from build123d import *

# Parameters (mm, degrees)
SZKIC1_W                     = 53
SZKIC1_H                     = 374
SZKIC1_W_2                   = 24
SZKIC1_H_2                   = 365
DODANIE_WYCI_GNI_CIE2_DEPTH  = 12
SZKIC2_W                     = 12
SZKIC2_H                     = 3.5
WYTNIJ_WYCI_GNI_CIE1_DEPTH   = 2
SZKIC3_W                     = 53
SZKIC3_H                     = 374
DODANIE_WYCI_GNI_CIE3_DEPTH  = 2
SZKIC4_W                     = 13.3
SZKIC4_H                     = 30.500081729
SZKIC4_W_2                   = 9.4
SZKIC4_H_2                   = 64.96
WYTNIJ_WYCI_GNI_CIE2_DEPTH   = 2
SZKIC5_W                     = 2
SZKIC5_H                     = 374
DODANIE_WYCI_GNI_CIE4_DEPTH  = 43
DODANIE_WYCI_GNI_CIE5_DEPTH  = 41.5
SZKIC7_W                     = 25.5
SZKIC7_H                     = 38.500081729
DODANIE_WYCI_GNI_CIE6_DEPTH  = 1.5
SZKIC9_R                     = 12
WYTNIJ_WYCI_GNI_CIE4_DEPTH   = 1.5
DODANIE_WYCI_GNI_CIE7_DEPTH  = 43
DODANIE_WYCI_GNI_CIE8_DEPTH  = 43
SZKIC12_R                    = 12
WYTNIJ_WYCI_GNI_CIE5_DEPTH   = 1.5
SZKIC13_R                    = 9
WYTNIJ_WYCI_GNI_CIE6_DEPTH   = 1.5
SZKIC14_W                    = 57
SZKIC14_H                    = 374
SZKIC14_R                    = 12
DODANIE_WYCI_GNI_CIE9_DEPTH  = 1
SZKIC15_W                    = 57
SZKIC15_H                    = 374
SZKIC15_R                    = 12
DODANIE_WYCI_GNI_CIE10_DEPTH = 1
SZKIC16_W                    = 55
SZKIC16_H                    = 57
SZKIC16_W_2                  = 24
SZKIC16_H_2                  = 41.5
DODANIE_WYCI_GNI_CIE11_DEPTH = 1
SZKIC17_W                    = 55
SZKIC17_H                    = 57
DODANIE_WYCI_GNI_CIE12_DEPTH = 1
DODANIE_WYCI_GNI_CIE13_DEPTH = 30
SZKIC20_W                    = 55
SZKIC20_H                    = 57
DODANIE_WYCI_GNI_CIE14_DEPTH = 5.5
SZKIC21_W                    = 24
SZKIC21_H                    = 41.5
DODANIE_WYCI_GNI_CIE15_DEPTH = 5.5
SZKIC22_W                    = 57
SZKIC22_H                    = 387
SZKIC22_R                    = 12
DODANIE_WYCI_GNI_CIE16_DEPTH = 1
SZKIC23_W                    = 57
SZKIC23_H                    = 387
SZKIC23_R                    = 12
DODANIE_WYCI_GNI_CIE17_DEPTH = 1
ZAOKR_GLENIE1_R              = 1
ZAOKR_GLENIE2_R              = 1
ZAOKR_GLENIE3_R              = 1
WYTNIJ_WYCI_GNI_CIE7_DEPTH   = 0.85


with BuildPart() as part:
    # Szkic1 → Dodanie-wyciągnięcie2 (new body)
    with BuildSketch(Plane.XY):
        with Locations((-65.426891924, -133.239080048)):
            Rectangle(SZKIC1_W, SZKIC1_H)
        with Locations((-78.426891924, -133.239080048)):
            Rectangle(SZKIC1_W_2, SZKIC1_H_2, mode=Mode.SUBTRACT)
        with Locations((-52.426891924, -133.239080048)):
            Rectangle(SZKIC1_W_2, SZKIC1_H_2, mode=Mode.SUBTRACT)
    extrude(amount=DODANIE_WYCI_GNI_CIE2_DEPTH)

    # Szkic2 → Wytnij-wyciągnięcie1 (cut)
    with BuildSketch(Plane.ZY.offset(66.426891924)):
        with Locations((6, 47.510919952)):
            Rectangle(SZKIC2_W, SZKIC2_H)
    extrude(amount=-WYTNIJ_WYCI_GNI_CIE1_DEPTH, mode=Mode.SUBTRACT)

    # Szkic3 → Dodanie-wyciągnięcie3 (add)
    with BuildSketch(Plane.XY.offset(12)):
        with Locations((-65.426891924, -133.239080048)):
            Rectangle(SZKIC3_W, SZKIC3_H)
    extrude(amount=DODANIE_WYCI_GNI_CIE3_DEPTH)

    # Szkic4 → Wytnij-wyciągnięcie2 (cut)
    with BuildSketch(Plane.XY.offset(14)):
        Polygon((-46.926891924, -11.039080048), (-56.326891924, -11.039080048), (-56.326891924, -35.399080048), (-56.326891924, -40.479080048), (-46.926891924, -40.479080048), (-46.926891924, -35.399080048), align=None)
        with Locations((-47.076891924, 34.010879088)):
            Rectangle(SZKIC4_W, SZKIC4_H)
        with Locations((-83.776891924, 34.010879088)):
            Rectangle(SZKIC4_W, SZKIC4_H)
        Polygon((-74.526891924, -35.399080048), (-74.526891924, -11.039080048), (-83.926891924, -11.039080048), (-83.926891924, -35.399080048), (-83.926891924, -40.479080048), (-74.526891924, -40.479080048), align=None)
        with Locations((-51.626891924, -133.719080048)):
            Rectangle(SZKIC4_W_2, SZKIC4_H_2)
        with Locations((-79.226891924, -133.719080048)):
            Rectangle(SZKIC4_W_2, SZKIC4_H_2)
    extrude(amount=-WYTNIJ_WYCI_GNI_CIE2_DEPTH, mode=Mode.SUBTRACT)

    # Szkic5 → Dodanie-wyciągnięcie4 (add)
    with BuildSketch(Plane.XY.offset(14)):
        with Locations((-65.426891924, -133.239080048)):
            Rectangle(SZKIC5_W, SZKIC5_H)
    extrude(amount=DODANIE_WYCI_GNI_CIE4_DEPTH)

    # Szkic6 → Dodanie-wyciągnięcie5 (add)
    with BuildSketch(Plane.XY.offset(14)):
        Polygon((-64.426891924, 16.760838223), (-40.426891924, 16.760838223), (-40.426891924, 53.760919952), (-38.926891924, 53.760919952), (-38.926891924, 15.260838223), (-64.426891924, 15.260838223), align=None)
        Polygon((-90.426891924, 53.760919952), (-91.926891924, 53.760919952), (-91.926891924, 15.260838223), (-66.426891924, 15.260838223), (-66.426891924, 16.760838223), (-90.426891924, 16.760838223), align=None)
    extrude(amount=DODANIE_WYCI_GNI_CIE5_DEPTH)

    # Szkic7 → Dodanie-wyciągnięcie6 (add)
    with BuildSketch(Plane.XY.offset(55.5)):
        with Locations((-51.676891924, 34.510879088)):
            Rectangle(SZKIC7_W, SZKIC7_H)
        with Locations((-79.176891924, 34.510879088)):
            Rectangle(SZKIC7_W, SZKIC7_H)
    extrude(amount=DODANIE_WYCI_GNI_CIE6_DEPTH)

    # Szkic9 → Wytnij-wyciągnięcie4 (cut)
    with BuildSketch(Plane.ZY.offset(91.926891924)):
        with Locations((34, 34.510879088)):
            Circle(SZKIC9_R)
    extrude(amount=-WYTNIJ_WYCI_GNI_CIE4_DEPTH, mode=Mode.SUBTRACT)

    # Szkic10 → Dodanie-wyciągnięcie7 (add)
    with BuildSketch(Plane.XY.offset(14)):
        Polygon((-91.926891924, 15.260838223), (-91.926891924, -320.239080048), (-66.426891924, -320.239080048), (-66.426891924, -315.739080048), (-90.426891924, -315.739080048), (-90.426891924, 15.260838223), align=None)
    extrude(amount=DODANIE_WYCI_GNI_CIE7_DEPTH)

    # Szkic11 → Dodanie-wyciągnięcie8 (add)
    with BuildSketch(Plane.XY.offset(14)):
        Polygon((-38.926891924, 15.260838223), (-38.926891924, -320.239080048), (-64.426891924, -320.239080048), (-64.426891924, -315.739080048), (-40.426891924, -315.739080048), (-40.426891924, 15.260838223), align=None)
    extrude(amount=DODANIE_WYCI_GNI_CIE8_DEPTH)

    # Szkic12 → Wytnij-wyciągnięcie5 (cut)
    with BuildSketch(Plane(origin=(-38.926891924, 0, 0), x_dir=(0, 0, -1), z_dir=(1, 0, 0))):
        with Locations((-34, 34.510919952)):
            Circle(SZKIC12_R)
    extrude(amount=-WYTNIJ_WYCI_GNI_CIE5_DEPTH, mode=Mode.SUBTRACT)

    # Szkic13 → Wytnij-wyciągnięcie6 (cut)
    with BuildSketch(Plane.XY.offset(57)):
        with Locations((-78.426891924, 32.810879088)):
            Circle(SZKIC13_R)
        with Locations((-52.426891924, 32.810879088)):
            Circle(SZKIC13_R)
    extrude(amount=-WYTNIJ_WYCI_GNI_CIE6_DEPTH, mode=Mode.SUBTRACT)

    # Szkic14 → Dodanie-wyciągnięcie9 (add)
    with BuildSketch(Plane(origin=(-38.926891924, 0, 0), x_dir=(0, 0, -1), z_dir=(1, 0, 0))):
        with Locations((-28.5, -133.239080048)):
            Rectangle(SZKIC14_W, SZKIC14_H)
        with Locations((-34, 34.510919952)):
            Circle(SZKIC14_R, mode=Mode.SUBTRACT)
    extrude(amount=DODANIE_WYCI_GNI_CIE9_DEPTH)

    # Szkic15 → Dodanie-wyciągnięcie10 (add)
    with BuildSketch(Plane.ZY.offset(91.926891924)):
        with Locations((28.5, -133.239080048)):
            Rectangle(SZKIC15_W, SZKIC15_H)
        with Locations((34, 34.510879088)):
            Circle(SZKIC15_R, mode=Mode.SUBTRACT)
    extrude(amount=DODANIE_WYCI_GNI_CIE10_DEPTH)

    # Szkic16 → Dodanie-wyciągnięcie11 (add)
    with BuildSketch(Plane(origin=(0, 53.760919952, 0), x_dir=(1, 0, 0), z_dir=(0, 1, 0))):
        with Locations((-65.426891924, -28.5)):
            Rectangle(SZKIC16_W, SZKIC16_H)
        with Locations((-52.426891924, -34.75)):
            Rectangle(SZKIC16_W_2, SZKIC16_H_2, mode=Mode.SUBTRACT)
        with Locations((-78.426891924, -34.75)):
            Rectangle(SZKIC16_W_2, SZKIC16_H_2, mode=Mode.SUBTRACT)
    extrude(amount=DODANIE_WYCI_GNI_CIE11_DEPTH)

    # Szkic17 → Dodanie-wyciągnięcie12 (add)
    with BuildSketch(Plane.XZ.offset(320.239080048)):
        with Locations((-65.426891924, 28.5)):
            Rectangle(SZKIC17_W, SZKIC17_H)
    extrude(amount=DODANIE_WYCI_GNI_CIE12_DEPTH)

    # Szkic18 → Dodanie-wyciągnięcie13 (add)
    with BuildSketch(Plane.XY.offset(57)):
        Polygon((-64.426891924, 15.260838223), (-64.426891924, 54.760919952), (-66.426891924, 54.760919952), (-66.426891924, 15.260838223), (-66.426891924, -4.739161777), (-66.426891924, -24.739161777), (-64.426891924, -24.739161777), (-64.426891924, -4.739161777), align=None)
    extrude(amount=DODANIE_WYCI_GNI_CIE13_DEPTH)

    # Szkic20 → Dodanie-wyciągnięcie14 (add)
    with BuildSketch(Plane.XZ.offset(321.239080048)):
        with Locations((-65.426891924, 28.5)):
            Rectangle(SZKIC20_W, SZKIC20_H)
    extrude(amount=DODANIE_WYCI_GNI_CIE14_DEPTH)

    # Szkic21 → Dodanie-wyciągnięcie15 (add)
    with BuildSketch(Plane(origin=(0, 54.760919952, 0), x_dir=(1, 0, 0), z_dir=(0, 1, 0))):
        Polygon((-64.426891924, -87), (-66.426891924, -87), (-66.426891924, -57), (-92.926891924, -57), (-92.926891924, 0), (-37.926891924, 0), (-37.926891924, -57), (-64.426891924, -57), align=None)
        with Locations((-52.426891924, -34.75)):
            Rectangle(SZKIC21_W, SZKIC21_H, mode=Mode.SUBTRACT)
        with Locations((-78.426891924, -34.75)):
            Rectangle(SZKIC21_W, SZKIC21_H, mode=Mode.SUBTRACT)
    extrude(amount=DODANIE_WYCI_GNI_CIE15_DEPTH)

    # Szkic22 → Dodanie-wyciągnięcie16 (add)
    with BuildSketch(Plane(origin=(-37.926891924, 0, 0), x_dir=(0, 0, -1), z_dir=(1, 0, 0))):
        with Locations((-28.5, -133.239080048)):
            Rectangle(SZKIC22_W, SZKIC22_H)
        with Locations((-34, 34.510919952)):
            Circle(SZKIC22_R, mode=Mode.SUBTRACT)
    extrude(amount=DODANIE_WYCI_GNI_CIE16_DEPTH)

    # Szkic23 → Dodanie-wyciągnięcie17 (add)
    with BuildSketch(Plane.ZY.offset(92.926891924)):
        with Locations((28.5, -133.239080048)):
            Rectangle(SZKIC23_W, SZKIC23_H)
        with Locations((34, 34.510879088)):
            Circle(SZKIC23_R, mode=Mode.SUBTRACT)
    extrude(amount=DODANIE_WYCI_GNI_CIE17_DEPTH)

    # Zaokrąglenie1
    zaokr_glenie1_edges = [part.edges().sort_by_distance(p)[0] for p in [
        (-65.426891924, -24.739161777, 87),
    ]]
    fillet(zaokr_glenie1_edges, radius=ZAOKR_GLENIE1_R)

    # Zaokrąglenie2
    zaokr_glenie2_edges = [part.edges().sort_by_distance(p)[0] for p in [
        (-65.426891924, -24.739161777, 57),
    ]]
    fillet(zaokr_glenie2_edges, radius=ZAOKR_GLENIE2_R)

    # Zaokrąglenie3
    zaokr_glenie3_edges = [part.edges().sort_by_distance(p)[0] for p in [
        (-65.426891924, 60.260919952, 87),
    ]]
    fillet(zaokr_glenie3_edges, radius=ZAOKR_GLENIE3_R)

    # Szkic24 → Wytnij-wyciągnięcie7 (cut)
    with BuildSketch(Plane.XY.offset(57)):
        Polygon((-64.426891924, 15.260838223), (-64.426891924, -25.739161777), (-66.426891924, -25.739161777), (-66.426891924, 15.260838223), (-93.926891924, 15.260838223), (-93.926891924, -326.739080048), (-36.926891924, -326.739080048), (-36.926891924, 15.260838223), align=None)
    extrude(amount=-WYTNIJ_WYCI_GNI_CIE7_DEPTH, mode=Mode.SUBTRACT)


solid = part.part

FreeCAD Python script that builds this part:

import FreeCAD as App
import Part
import Sketcher

V = App.Vector
Q = App.Units.Quantity


def edges_at(feature, points):
    """Names of the edges that pass closest to the given points."""
    edges = feature.Shape.Edges
    near = lambda p: min(range(len(edges)), key=lambda i: edges[i].distToShape(Part.Vertex(*p))[0])
    return sorted({f"Edge{near(p) + 1}" for p in points})


def add_polygon(sketch, points):
    """Adds a closed chain of lines whose ends are joined by coincident constraints."""
    first, n = sketch.GeometryCount, len(points)
    for a, b in zip(points, points[1:] + points[:1]):
        sketch.addGeometry(Part.LineSegment(App.Vector(*a, 0), App.Vector(*b, 0)), False)
    for i in range(n):
        sketch.addConstraint(Sketcher.Constraint("Coincident", first + i, 2, first + (i + 1) % n, 1))

doc = App.newDocument("Part")
body = doc.addObject("PartDesign::Body", "Body")

# Sketch on XY plane
sketch1 = body.newObject("Sketcher::SketchObject", "Sketch")
sketch1.AttachmentSupport = (doc.getObject("XY_Plane"), [""])
sketch1.MapMode = "FlatFace"
add_polygon(sketch1, [(-92, 54), (-92, -320), (-39, -320), (-39, 54)])  # lines 0-3
add_polygon(sketch1, [(-66, -316), (-90, -316), (-90, 49), (-66, 49)])  # lines 4-7
add_polygon(sketch1, [(-40, -316), (-64, -316), (-64, 49), (-40, 49)])  # lines 8-11
sketch1.addConstraint(Sketcher.Constraint("Vertical", 0))
sketch1.addConstraint(Sketcher.Constraint("Horizontal", 1))
sketch1.addConstraint(Sketcher.Constraint("Vertical", 2))
sketch1.addConstraint(Sketcher.Constraint("Horizontal", 3))
sketch1.addConstraint(Sketcher.Constraint("Horizontal", 4))
sketch1.addConstraint(Sketcher.Constraint("Vertical", 5))
sketch1.addConstraint(Sketcher.Constraint("Horizontal", 6))
sketch1.addConstraint(Sketcher.Constraint("Vertical", 7))
sketch1.addConstraint(Sketcher.Constraint("Horizontal", 8))
sketch1.addConstraint(Sketcher.Constraint("Vertical", 9))
sketch1.addConstraint(Sketcher.Constraint("Horizontal", 10))
sketch1.addConstraint(Sketcher.Constraint("Vertical", 11))
sketch1.addConstraint(Sketcher.Constraint("Horizontal", 7, 2, 8, 2))
sketch1.addConstraint(Sketcher.Constraint("Horizontal", 6, 2, 9, 2))
sketch1.addConstraint(Sketcher.Constraint("Equal", 6, 8))
sketch1.addConstraint(Sketcher.Constraint("DistanceX", 1, 1, 1, 2, Q("53 mm")))
sketch1.addConstraint(Sketcher.Constraint("DistanceX", 4, 2, 4, 1, Q("24 mm")))
sketch1.addConstraint(Sketcher.Constraint("DistanceY", 0, 2, 0, 1, Q("374 mm")))
sketch1.addConstraint(Sketcher.Constraint("DistanceY", 5, 1, 5, 2, Q("365 mm")))
sketch1.addConstraint(Sketcher.Constraint("DistanceX", 7, 2, 8, 2, Q("2 mm")))
sketch1.addConstraint(Sketcher.Constraint("DistanceX", 0, 2, 4, 2, Q("1.5 mm")))
sketch1.addConstraint(Sketcher.Constraint("DistanceY", 0, 2, 4, 2, Q("4.5 mm")))
sketch1.addConstraint(Sketcher.Constraint("DistanceX", 0, 2, -1, 1, Q("91.926892 mm")))
sketch1.addConstraint(Sketcher.Constraint("DistanceY", 0, 2, -1, 1, Q("320.23908 mm")))
pad1 = body.newObject("PartDesign::Pad", "Pad")
pad1.Profile = sketch1
pad1.Length = 12

# Sketch on YZ plane
sketch2 = body.newObject("Sketcher::SketchObject", "Sketch001")
sketch2.AttachmentSupport = (doc.getObject("YZ_Plane"), [""])
sketch2.MapMode = "FlatFace"
sketch2.AttachmentOffset = App.Placement(V(0, 0, -66.426892), App.Rotation())
add_polygon(sketch2, [(49.3, 0), (45.8, 0), (45.8, 12), (49.3, 12)])  # lines 0-3
sketch2.addConstraint(Sketcher.Constraint("Horizontal", 0))
sketch2.addConstraint(Sketcher.Constraint("Vertical", 1))
sketch2.addConstraint(Sketcher.Constraint("Horizontal", 2))
sketch2.addConstraint(Sketcher.Constraint("Vertical", 3))
sketch2.addConstraint(Sketcher.Constraint("PointOnObject", 0, 2, -1))
sketch2.addConstraint(Sketcher.Constraint("DistanceY", 1, 1, 1, 2, Q("12 mm")))
sketch2.addConstraint(Sketcher.Constraint("DistanceX", 0, 2, 0, 1, Q("3.5 mm")))
sketch2.addConstraint(Sketcher.Constraint("DistanceX", -1, 1, 0, 2, Q("45.76092 mm")))
pocket1 = body.newObject("PartDesign::Pocket", "Pocket")
pocket1.Profile = sketch2
pocket1.Length = 2
pocket1.Reversed = True

# Sketch on XY plane
sketch3 = body.newObject("Sketcher::SketchObject", "Sketch002")
sketch3.AttachmentSupport = (doc.getObject("XY_Plane"), [""])
sketch3.MapMode = "FlatFace"
sketch3.AttachmentOffset = App.Placement(V(0, 0, 12), App.Rotation())
add_polygon(sketch3, [(-92, 54), (-92, -320), (-39, -320), (-39, 54)])  # lines 0-3
sketch3.addConstraint(Sketcher.Constraint("Vertical", 0))
sketch3.addConstraint(Sketcher.Constraint("Horizontal", 1))
sketch3.addConstraint(Sketcher.Constraint("Vertical", 2))
sketch3.addConstraint(Sketcher.Constraint("Horizontal", 3))
sketch3.addConstraint(Sketcher.Constraint("DistanceX", 1, 1, 1, 2, Q("53 mm")))
sketch3.addConstraint(Sketcher.Constraint("DistanceY", 0, 2, 0, 1, Q("374 mm")))
sketch3.addConstraint(Sketcher.Constraint("DistanceX", 0, 2, -1, 1, Q("91.926892 mm")))
sketch3.addConstraint(Sketcher.Constraint("DistanceY", 0, 2, -1, 1, Q("320.23908 mm")))
pad2 = body.newObject("PartDesign::Pad", "Pad001")
pad2.Profile = sketch3
pad2.Length = 2

# Sketch on XY plane
sketch4 = body.newObject("Sketcher::SketchObject", "Sketch003")
sketch4.AttachmentSupport = (doc.getObject("XY_Plane"), [""])
sketch4.MapMode = "FlatFace"
sketch4.AttachmentOffset = App.Placement(V(0, 0, 14), App.Rotation())
add_polygon(sketch4, [(-47, -11), (-56, -11), (-56, -40), (-47, -40)])  # lines 0-3
add_polygon(sketch4, [(-54, 49), (-54, 19), (-40, 19), (-40, 49)])  # lines 4-7
add_polygon(sketch4, [(-90, 49), (-90, 19), (-77, 19), (-77, 49)])  # lines 8-11
add_polygon(sketch4, [(-75, -11), (-84, -11), (-84, -40), (-75, -40)])  # lines 12-15
add_polygon(sketch4, [(-56, -101), (-56, -166), (-47, -166), (-47, -101)])  # lines 16-19
add_polygon(sketch4, [(-84, -101), (-84, -166), (-75, -166), (-75, -101)])  # lines 20-23
sketch4.addConstraint(Sketcher.Constraint("Horizontal", 0))
sketch4.addConstraint(Sketcher.Constraint("Vertical", 1))
sketch4.addConstraint(Sketcher.Constraint("Horizontal", 2))
sketch4.addConstraint(Sketcher.Constraint("Vertical", 3))
sketch4.addConstraint(Sketcher.Constraint("Vertical", 4))
sketch4.addConstraint(Sketcher.Constraint("Horizontal", 5))
sketch4.addConstraint(Sketcher.Constraint("Vertical", 6))
sketch4.addConstraint(Sketcher.Constraint("Horizontal", 7))
sketch4.addConstraint(Sketcher.Constraint("Vertical", 8))
sketch4.addConstraint(Sketcher.Constraint("Horizontal", 9))
sketch4.addConstraint(Sketcher.Constraint("Vertical", 10))
sketch4.addConstraint(Sketcher.Constraint("Horizontal", 11))
sketch4.addConstraint(Sketcher.Constraint("Horizontal", 12))
sketch4.addConstraint(Sketcher.Constraint("Vertical", 13))
sketch4.addConstraint(Sketcher.Constraint("Horizontal", 14))
sketch4.addConstraint(Sketcher.Constraint("Vertical", 15))
sketch4.addConstraint(Sketcher.Constraint("Vertical", 16))
sketch4.addConstraint(Sketcher.Constraint("Horizontal", 17))
sketch4.addConstraint(Sketcher.Constraint("Vertical", 18))
sketch4.addConstraint(Sketcher.Constraint("Horizontal", 19))
sketch4.addConstraint(Sketcher.Constraint("Vertical", 20))
sketch4.addConstraint(Sketcher.Constraint("Horizontal", 21))
sketch4.addConstraint(Sketcher.Constraint("Vertical", 22))
sketch4.addConstraint(Sketcher.Constraint("Horizontal", 23))
sketch4.addConstraint(Sketcher.Constraint("Horizontal", 5, 2, 8, 2))
sketch4.addConstraint(Sketcher.Constraint("Horizontal", 7, 2, 10, 2))
sketch4.addConstraint(Sketcher.Constraint("Horizontal", 3, 2, 12, 2))
sketch4.addConstraint(Sketcher.Constraint("Horizontal", 2, 2, 13, 2))
sketch4.addConstraint(Sketcher.Constraint("Horizontal", 17, 2, 20, 2))
sketch4.addConstraint(Sketcher.Constraint("Horizontal", 19, 2, 22, 2))
sketch4.addConstraint(Sketcher.Constraint("Vertical", 1, 2, 16, 2))
sketch4.addConstraint(Sketcher.Constraint("Vertical", 3, 2, 17, 2))
sketch4.addConstraint(Sketcher.Constraint("Vertical", 13, 2, 20, 2))
sketch4.addConstraint(Sketcher.Constraint("Vertical", 15, 2, 21, 2))
sketch4.addConstraint(Sketcher.Constraint("Equal", 7, 9))
sketch4.addConstraint(Sketcher.Constraint("Equal", 2, 12))
sketch4.addConstraint(Sketcher.Constraint("DistanceX", 0, 2, 0, 1, Q("9.4 mm")))
sketch4.addConstraint(Sketcher.Constraint("DistanceX", 5, 1, 5, 2, Q("13.3 mm")))
sketch4.addConstraint(Sketcher.Constraint("DistanceX", 8, 2, 5, 2, Q("50 mm")))
sketch4.addConstraint(Sketcher.Constraint("DistanceX", 12, 2, 3, 2, Q("37 mm")))
sketch4.addConstraint(Sketcher.Constraint("DistanceY", 1, 2, 1, 1, Q("29.44 mm")))
sketch4.addConstraint(Sketcher.Constraint("DistanceY", 16, 2, 16, 1, Q("64.96 mm")))
sketch4.addConstraint(Sketcher.Constraint("DistanceX", 0, 2, 4, 2, Q("2.6 mm")))
sketch4.addConstraint(Sketcher.Constraint("DistanceY", 3, 2, 6, 2, Q("60.3 mm")))
sketch4.addConstraint(Sketcher.Constraint("DistanceY", 16, 2, 1, 2, Q("125.72 mm")))
sketch4.addConstraint(Sketcher.Constraint("DistanceY", 4, 2, 4, 1, Q("30.500082 mm")))
sketch4.addConstraint(Sketcher.Constraint("DistanceX", 0, 2, -1, 1, Q("56.326892 mm")))
sketch4.addConstraint(Sketcher.Constraint("DistanceY", 0, 2, -1, 1, Q("11.03908 mm")))
pocket2 = body.newObject("PartDesign::Pocket", "Pocket001")
pocket2.Profile = sketch4
pocket2.Length = 2

# Sketch on XY plane
sketch5 = body.newObject("Sketcher::SketchObject", "Sketch004")
sketch5.AttachmentSupport = (doc.getObject("XY_Plane"), [""])
sketch5.MapMode = "FlatFace"
sketch5.AttachmentOffset = App.Placement(V(0, 0, 14), App.Rotation())
add_polygon(sketch5, [(-66.4, 53.8), (-66.4, -320.2), (-64.4, -320.2), (-64.4, 53.8)])  # lines 0-3
sketch5.addConstraint(Sketcher.Constraint("Vertical", 0))
sketch5.addConstraint(Sketcher.Constraint("Horizontal", 1))
sketch5.addConstraint(Sketcher.Constraint("Vertical", 2))
sketch5.addConstraint(Sketcher.Constraint("Horizontal", 3))
sketch5.addConstraint(Sketcher.Constraint("DistanceX", 1, 1, 1, 2, Q("2 mm")))
sketch5.addConstraint(Sketcher.Constraint("DistanceY", 0, 2, 0, 1, Q("374 mm")))
sketch5.addConstraint(Sketcher.Constraint("DistanceX", 0, 2, -1, 1, Q("66.426892 mm")))
sketch5.addConstraint(Sketcher.Constraint("DistanceY", 0, 2, -1, 1, Q("320.23908 mm")))
pad3 = body.newObject("PartDesign::Pad", "Pad002")
pad3.Profile = sketch5
pad3.Length = 43

# Sketch on XY plane
sketch6 = body.newObject("Sketcher::SketchObject", "Sketch005")
sketch6.AttachmentSupport = (doc.getObject("XY_Plane"), [""])
sketch6.MapMode = "FlatFace"
sketch6.AttachmentOffset = App.Placement(V(0, 0, 14), App.Rotation())
add_polygon(sketch6, [(-40.4, 16.8), (-64.4, 16.8), (-64.4, 15.3), (-38.9, 15.3), (-38.9, 53.8), (-40.4, 53.8)])  # lines 0-5
add_polygon(sketch6, [(-90.4, 53.8), (-91.9, 53.8), (-91.9, 15.3), (-66.4, 15.3), (-66.4, 16.8), (-90.4, 16.8)])  # lines 6-11
sketch6.addConstraint(Sketcher.Constraint("Horizontal", 0))
sketch6.addConstraint(Sketcher.Constraint("Vertical", 1))
sketch6.addConstraint(Sketcher.Constraint("Horizontal", 2))
sketch6.addConstraint(Sketcher.Constraint("Vertical", 3))
sketch6.addConstraint(Sketcher.Constraint("Horizontal", 4))
sketch6.addConstraint(Sketcher.Constraint("Vertical", 5))
sketch6.addConstraint(Sketcher.Constraint("Horizontal", 6))
sketch6.addConstraint(Sketcher.Constraint("Vertical", 7))
sketch6.addConstraint(Sketcher.Constraint("Horizontal", 8))
sketch6.addConstraint(Sketcher.Constraint("Vertical", 9))
sketch6.addConstraint(Sketcher.Constraint("Horizontal", 10))
sketch6.addConstraint(Sketcher.Constraint("Vertical", 11))
sketch6.addConstraint(Sketcher.Constraint("Horizontal", 4, 2, 6, 2))
sketch6.addConstraint(Sketcher.Constraint("Horizontal", 2, 2, 7, 2))
sketch6.addConstraint(Sketcher.Constraint("Horizontal", 5, 2, 9, 2))
sketch6.addConstraint(Sketcher.Constraint("Equal", 4, 6))
sketch6.addConstraint(Sketcher.Constraint("Equal", 2, 8))
sketch6.addConstraint(Sketcher.Constraint("Equal", 6, 1))
sketch6.addConstraint(Sketcher.Constraint("DistanceX", 0, 2, 0, 1, Q("24 mm")))
sketch6.addConstraint(Sketcher.Constraint("DistanceX", 2, 1, 2, 2, Q("25.5 mm")))
sketch6.addConstraint(Sketcher.Constraint("DistanceX", 6, 2, 3, 2, Q("53 mm")))
sketch6.addConstraint(Sketcher.Constraint("DistanceY", 3, 1, 3, 2, Q("38.500082 mm")))
sketch6.addConstraint(Sketcher.Constraint("DistanceX", 0, 2, -1, 1, Q("64.426892 mm")))
sketch6.addConstraint(Sketcher.Constraint("DistanceY", -1, 1, 0, 2, Q("16.760838 mm")))
pad4 = body.newObject("PartDesign::Pad", "Pad003")
pad4.Profile = sketch6
pad4.Length = 41.5

# Sketch on XY plane
sketch7 = body.newObject("Sketcher::SketchObject", "Sketch006")
sketch7.AttachmentSupport = (doc.getObject("XY_Plane"), [""])
sketch7.MapMode = "FlatFace"
sketch7.AttachmentOffset = App.Placement(V(0, 0, 55.5), App.Rotation())
add_polygon(sketch7, [(-64, 54), (-64, 15), (-39, 15), (-39, 54)])  # lines 0-3
add_polygon(sketch7, [(-92, 54), (-92, 15), (-66, 15), (-66, 54)])  # lines 4-7
sketch7.addConstraint(Sketcher.Constraint("Vertical", 0))
sketch7.addConstraint(Sketcher.Constraint("Horizontal", 1))
sketch7.addConstraint(Sketcher.Constraint("Vertical", 2))
sketch7.addConstraint(Sketcher.Constraint("Horizontal", 3))
sketch7.addConstraint(Sketcher.Constraint("Vertical", 4))
sketch7.addConstraint(Sketcher.Constraint("Horizontal", 5))
sketch7.addConstraint(Sketcher.Constraint("Vertical", 6))
sketch7.addConstraint(Sketcher.Constraint("Horizontal", 7))
sketch7.addConstraint(Sketcher.Constraint("Horizontal", 1, 2, 4, 2))
sketch7.addConstraint(Sketcher.Constraint("Horizontal", 3, 2, 6, 2))
sketch7.addConstraint(Sketcher.Constraint("Equal", 3, 5))
sketch7.addConstraint(Sketcher.Constraint("DistanceX", 1, 1, 1, 2, Q("25.5 mm")))
sketch7.addConstraint(Sketcher.Constraint("DistanceX", 4, 2, 1, 2, Q("53 mm")))
sketch7.addConstraint(Sketcher.Constraint("DistanceY", 0, 2, 0, 1, Q("38.500082 mm")))
sketch7.addConstraint(Sketcher.Constraint("DistanceX", 0, 2, -1, 1, Q("64.426892 mm")))
sketch7.addConstraint(Sketcher.Constraint("DistanceY", -1, 1, 0, 2, Q("15.260838 mm")))
pad5 = body.newObject("PartDesign::Pad", "Pad004")
pad5.Profile = sketch7
pad5.Length = 1.5

# Sketch on YZ plane
sketch8 = body.newObject("Sketcher::SketchObject", "Sketch007")
sketch8.AttachmentSupport = (doc.getObject("YZ_Plane"), [""])
sketch8.MapMode = "FlatFace"
sketch8.AttachmentOffset = App.Placement(V(0, 0, -91.926892), App.Rotation())
sketch8.addGeometry(Part.Circle(V(35, 34, 0), V(0, 0, 1), 12), False)
sketch8.addConstraint(Sketcher.Constraint("Diameter", 0, Q("24 mm")))
sketch8.addConstraint(Sketcher.Constraint("DistanceY", -1, 1, 0, 3, Q("34 mm")))
sketch8.addConstraint(Sketcher.Constraint("DistanceX", -1, 1, 0, 3, Q("34.510879 mm")))
pocket3 = body.newObject("PartDesign::Pocket", "Pocket002")
pocket3.Profile = sketch8
pocket3.Length = 1.5
pocket3.Reversed = True

# Sketch on XY plane
sketch9 = body.newObject("Sketcher::SketchObject", "Sketch008")
sketch9.AttachmentSupport = (doc.getObject("XY_Plane"), [""])
sketch9.MapMode = "FlatFace"
sketch9.AttachmentOffset = App.Placement(V(0, 0, 14), App.Rotation())
add_polygon(sketch9, [(-91.9, 15.3), (-91.9, -320.2), (-66.4, -320.2), (-66.4, -315.7), (-90.4, -315.7), (-90.4, 15.3)])  # lines 0-5
sketch9.addConstraint(Sketcher.Constraint("Vertical", 0))
sketch9.addConstraint(Sketcher.Constraint("Horizontal", 1))
sketch9.addConstraint(Sketcher.Constraint("Vertical", 2))
sketch9.addConstraint(Sketcher.Constraint("Horizontal", 3))
sketch9.addConstraint(Sketcher.Constraint("Vertical", 4))
sketch9.addConstraint(Sketcher.Constraint("Horizontal", 5))
sketch9.addConstraint(Sketcher.Constraint("DistanceX", 3, 2, 3, 1, Q("24 mm")))
sketch9.addConstraint(Sketcher.Constraint("DistanceX", 1, 1, 1, 2, Q("25.5 mm")))
sketch9.addConstraint(Sketcher.Constraint("DistanceY", 2, 1, 2, 2, Q("4.5 mm")))
sketch9.addConstraint(Sketcher.Constraint("DistanceY", 0, 2, 0, 1, Q("335.499918 mm")))
sketch9.addConstraint(Sketcher.Constraint("DistanceX", 0, 2, -1, 1, Q("91.926892 mm")))
sketch9.addConstraint(Sketcher.Constraint("DistanceY", 0, 2, -1, 1, Q("320.23908 mm")))
pad6 = body.newObject("PartDesign::Pad", "Pad005")
pad6.Profile = sketch9
pad6.Length = 43

# Sketch on XY plane
sketch10 = body.newObject("Sketcher::SketchObject", "Sketch009")
sketch10.AttachmentSupport = (doc.getObject("XY_Plane"), [""])
sketch10.MapMode = "FlatFace"
sketch10.AttachmentOffset = App.Placement(V(0, 0, 14), App.Rotation())
add_polygon(sketch10, [(-38.9, -320.2), (-38.9, 15.3), (-40.4, 15.3), (-40.4, -315.7), (-64.4, -315.7), (-64.4, -320.2)])  # lines 0-5
sketch10.addConstraint(Sketcher.Constraint("Vertical", 0))
sketch10.addConstraint(Sketcher.Constraint("Horizontal", 1))
sketch10.addConstraint(Sketcher.Constraint("Vertical", 2))
sketch10.addConstraint(Sketcher.Constraint("Horizontal", 3))
sketch10.addConstraint(Sketcher.Constraint("Vertical", 4))
sketch10.addConstraint(Sketcher.Constraint("Horizontal", 5))
sketch10.addConstraint(Sketcher.Constraint("DistanceX", 3, 2, 3, 1, Q("24 mm")))
sketch10.addConstraint(Sketcher.Constraint("DistanceX", 1, 2, 1, 1, Q("1.5 mm")))
sketch10.addConstraint(Sketcher.Constraint("DistanceY", 4, 2, 4, 1, Q("4.5 mm")))
sketch10.addConstraint(Sketcher.Constraint("DistanceY", 0, 1, 0, 2, Q("335.499918 mm")))
sketch10.addConstraint(Sketcher.Constraint("DistanceX", 0, 2, -1, 1, Q("38.926892 mm")))
sketch10.addConstraint(Sketcher.Constraint("DistanceY", -1, 1, 0, 2, Q("15.260838 mm")))
pad7 = body.newObject("PartDesign::Pad", "Pad006")
pad7.Profile = sketch10
pad7.Length = 43

# Sketch on YZ plane
sketch11 = body.newObject("Sketcher::SketchObject", "Sketch010")
sketch11.AttachmentSupport = (doc.getObject("YZ_Plane"), [""])
sketch11.MapMode = "FlatFace"
sketch11.AttachmentOffset = App.Placement(V(0, 0, -38.926892), App.Rotation())
sketch11.addGeometry(Part.Circle(V(35, 34, 0), V(0, 0, 1), 12), False)
sketch11.addConstraint(Sketcher.Constraint("Diameter", 0, Q("24 mm")))
sketch11.addConstraint(Sketcher.Constraint("DistanceY", -1, 1, 0, 3, Q("34 mm")))
sketch11.addConstraint(Sketcher.Constraint("DistanceX", -1, 1, 0, 3, Q("34.51092 mm")))
pocket4 = body.newObject("PartDesign::Pocket", "Pocket003")
pocket4.Profile = sketch11
pocket4.Length = 1.5

# Sketch on XY plane
sketch12 = body.newObject("Sketcher::SketchObject", "Sketch011")
sketch12.AttachmentSupport = (doc.getObject("XY_Plane"), [""])
sketch12.MapMode = "FlatFace"
sketch12.AttachmentOffset = App.Placement(V(0, 0, 57), App.Rotation())
sketch12.addGeometry(Part.Circle(V(-78, 33, 0), V(0, 0, 1), 9), False)
sketch12.addGeometry(Part.Circle(V(-52, 33, 0), V(0, 0, 1), 9), False)
sketch12.addConstraint(Sketcher.Constraint("Equal", 0, 1))
sketch12.addConstraint(Sketcher.Constraint("Horizontal", 0, 3, 1, 3))
sketch12.addConstraint(Sketcher.Constraint("Diameter", 0, Q("18 mm")))
sketch12.addConstraint(Sketcher.Constraint("DistanceX", 0, 3, 1, 3, Q("26 mm")))
sketch12.addConstraint(Sketcher.Constraint("DistanceX", 0, 3, -1, 1, Q("78.426892 mm")))
sketch12.addConstraint(Sketcher.Constraint("DistanceY", -1, 1, 0, 3, Q("32.810879 mm")))
pocket5 = body.newObject("PartDesign::Pocket", "Pocket004")
pocket5.Profile = sketch12
pocket5.Length = 1.5

# Sketch on YZ plane
sketch13 = body.newObject("Sketcher::SketchObject", "Sketch012")
sketch13.AttachmentSupport = (doc.getObject("YZ_Plane"), [""])
sketch13.MapMode = "FlatFace"
sketch13.AttachmentOffset = App.Placement(V(0, 0, -38.926892), App.Rotation())
add_polygon(sketch13, [(54, 57), (-320, 57), (-320, 0), (54, 0)])  # lines 0-3
sketch13.addGeometry(Part.Circle(V(35, 34, 0), V(0, 0, 1), 12), False)  # 4
sketch13.addConstraint(Sketcher.Constraint("Horizontal", 0))
sketch13.addConstraint(Sketcher.Constraint("Vertical", 1))
sketch13.addConstraint(Sketcher.Constraint("Horizontal", 2))
sketch13.addConstraint(Sketcher.Constraint("Vertical", 3))
sketch13.addConstraint(Sketcher.Constraint("PointOnObject", 1, 2, -1))
sketch13.addConstraint(Sketcher.Constraint("Diameter", 4, Q("24 mm")))
sketch13.addConstraint(Sketcher.Constraint("DistanceX", 0, 2, 0, 1, Q("374 mm")))
sketch13.addConstraint(Sketcher.Constraint("DistanceY", 1, 2, 1, 1, Q("57 mm")))
sketch13.addConstraint(Sketcher.Constraint("DistanceY", -1, 1, 4, 3, Q("34 mm")))
sketch13.addConstraint(Sketcher.Constraint("DistanceX", 0, 2, 4, 3, Q("354.75 mm")))
sketch13.addConstraint(Sketcher.Constraint("DistanceX", -1, 1, 4, 3, Q("34.51092 mm")))
pad8 = body.newObject("PartDesign::Pad", "Pad007")
pad8.Profile = sketch13
pad8.Length = 1

# Sketch on YZ plane
sketch14 = body.newObject("Sketcher::SketchObject", "Sketch013")
sketch14.AttachmentSupport = (doc.getObject("YZ_Plane"), [""])
sketch14.MapMode = "FlatFace"
sketch14.AttachmentOffset = App.Placement(V(0, 0, -91.926892), App.Rotation())
add_polygon(sketch14, [(54, 0), (-320, 0), (-320, 57), (54, 57)])  # lines 0-3
sketch14.addGeometry(Part.Circle(V(35, 34, 0), V(0, 0, 1), 12), False)  # 4
sketch14.addConstraint(Sketcher.Constraint("Horizontal", 0))
sketch14.addConstraint(Sketcher.Constraint("Vertical", 1))
sketch14.addConstraint(Sketcher.Constraint("Horizontal", 2))
sketch14.addConstraint(Sketcher.Constraint("Vertical", 3))
sketch14.addConstraint(Sketcher.Constraint("PointOnObject", 0, 2, -1))
sketch14.addConstraint(Sketcher.Constraint("Diameter", 4, Q("24 mm")))
sketch14.addConstraint(Sketcher.Constraint("DistanceX", 0, 2, 0, 1, Q("374 mm")))
sketch14.addConstraint(Sketcher.Constraint("DistanceY", 1, 1, 1, 2, Q("57 mm")))
sketch14.addConstraint(Sketcher.Constraint("DistanceY", -1, 1, 4, 3, Q("34 mm")))
sketch14.addConstraint(Sketcher.Constraint("DistanceX", -1, 1, 4, 3, Q("34.510879 mm")))
sketch14.addConstraint(Sketcher.Constraint("DistanceX", 0, 2, -1, 1, Q("320.23908 mm")))
pad9 = body.newObject("PartDesign::Pad", "Pad008")
pad9.Profile = sketch14
pad9.Length = 1
pad9.Reversed = True

# Sketch on XZ plane
sketch15 = body.newObject("Sketcher::SketchObject", "Sketch014")
sketch15.AttachmentSupport = (doc.getObject("XZ_Plane"), [""])
sketch15.MapMode = "FlatFace"
sketch15.AttachmentOffset = App.Placement(V(0, 0, -53.76092), App.Rotation())
add_polygon(sketch15, [(-93, 0), (-93, 57), (-38, 57), (-38, 0)])  # lines 0-3
add_polygon(sketch15, [(-66, 56), (-90, 56), (-90, 14), (-66, 14)])  # lines 4-7
add_polygon(sketch15, [(-40, 56), (-64, 56), (-64, 14), (-40, 14)])  # lines 8-11
sketch15.addConstraint(Sketcher.Constraint("Vertical", 0))
sketch15.addConstraint(Sketcher.Constraint("Horizontal", 1))
sketch15.addConstraint(Sketcher.Constraint("Vertical", 2))
sketch15.addConstraint(Sketcher.Constraint("Horizontal", 3))
sketch15.addConstraint(Sketcher.Constraint("Horizontal", 4))
sketch15.addConstraint(Sketcher.Constraint("Vertical", 5))
sketch15.addConstraint(Sketcher.Constraint("Horizontal", 6))
sketch15.addConstraint(Sketcher.Constraint("Vertical", 7))
sketch15.addConstraint(Sketcher.Constraint("Horizontal", 8))
sketch15.addConstraint(Sketcher.Constraint("Vertical", 9))
sketch15.addConstraint(Sketcher.Constraint("Horizontal", 10))
sketch15.addConstraint(Sketcher.Constraint("Vertical", 11))
sketch15.addConstraint(Sketcher.Constraint("PointOnObject", 2, 2, -1))
sketch15.addConstraint(Sketcher.Constraint("Horizontal", 7, 2, 8, 2))
sketch15.addConstraint(Sketcher.Constraint("Horizontal", 6, 2, 9, 2))
sketch15.addConstraint(Sketcher.Constraint("Equal", 6, 8))
sketch15.addConstraint(Sketcher.Constraint("DistanceX", 1, 1, 1, 2, Q("55 mm")))
sketch15.addConstraint(Sketcher.Constraint("DistanceX", 4, 2, 4, 1, Q("24 mm")))
sketch15.addConstraint(Sketcher.Constraint("DistanceY", 0, 1, 0, 2, Q("57 mm")))
sketch15.addConstraint(Sketcher.Constraint("DistanceY", 5, 2, 5, 1, Q("41.5 mm")))
sketch15.addConstraint(Sketcher.Constraint("DistanceY", -1, 1, 5, 2, Q("14 mm")))
sketch15.addConstraint(Sketcher.Constraint("DistanceX", 7, 2, 8, 2, Q("2 mm")))
sketch15.addConstraint(Sketcher.Constraint("DistanceX", 0, 2, 4, 2, Q("2.5 mm")))
sketch15.addConstraint(Sketcher.Constraint("DistanceX", 0, 2, -1, 1, Q("92.926892 mm")))
pad10 = body.newObject("PartDesign::Pad", "Pad009")
pad10.Profile = sketch15
pad10.Length = 1
pad10.Reversed = True

# Sketch on XZ plane
sketch16 = body.newObject("Sketcher::SketchObject", "Sketch015")
sketch16.AttachmentSupport = (doc.getObject("XZ_Plane"), [""])
sketch16.MapMode = "FlatFace"
sketch16.AttachmentOffset = App.Placement(V(0, 0, 320.23908), App.Rotation())
add_polygon(sketch16, [(-93, 57), (-93, 0), (-38, 0), (-38, 57)])  # lines 0-3
sketch16.addConstraint(Sketcher.Constraint("Vertical", 0))
sketch16.addConstraint(Sketcher.Constraint("Horizontal", 1))
sketch16.addConstraint(Sketcher.Constraint("Vertical", 2))
sketch16.addConstraint(Sketcher.Constraint("Horizontal", 3))
sketch16.addConstraint(Sketcher.Constraint("PointOnObject", 0, 2, -1))
sketch16.addConstraint(Sketcher.Constraint("DistanceX", 1, 1, 1, 2, Q("55 mm")))
sketch16.addConstraint(Sketcher.Constraint("DistanceY", 0, 2, 0, 1, Q("57 mm")))
sketch16.addConstraint(Sketcher.Constraint("DistanceX", 0, 2, -1, 1, Q("92.926892 mm")))
pad11 = body.newObject("PartDesign::Pad", "Pad010")
pad11.Profile = sketch16
pad11.Length = 1

# Sketch on XY plane
sketch17 = body.newObject("Sketcher::SketchObject", "Sketch016")
sketch17.AttachmentSupport = (doc.getObject("XY_Plane"), [""])
sketch17.MapMode = "FlatFace"
sketch17.AttachmentOffset = App.Placement(V(0, 0, 57), App.Rotation())
add_polygon(sketch17, [(-64.4, 54.8), (-66.4, 54.8), (-66.4, -24.7), (-64.4, -24.7)])  # lines 0-3
sketch17.addConstraint(Sketcher.Constraint("Horizontal", 0))
sketch17.addConstraint(Sketcher.Constraint("Vertical", 1))
sketch17.addConstraint(Sketcher.Constraint("Horizontal", 2))
sketch17.addConstraint(Sketcher.Constraint("Vertical", 3))
sketch17.addConstraint(Sketcher.Constraint("DistanceX", 0, 2, 0, 1, Q("2 mm")))
sketch17.addConstraint(Sketcher.Constraint("DistanceY", 1, 2, 1, 1, Q("79.500082 mm")))
sketch17.addConstraint(Sketcher.Constraint("DistanceX", 0, 2, -1, 1, Q("66.426892 mm")))
sketch17.addConstraint(Sketcher.Constraint("DistanceY", -1, 1, 0, 2, Q("54.76092 mm")))
pad12 = body.newObject("PartDesign::Pad", "Pad011")
pad12.Profile = sketch17
pad12.Length = 30

# Sketch on XZ plane
sketch18 = body.newObject("Sketcher::SketchObject", "Sketch017")
sketch18.AttachmentSupport = (doc.getObject("XZ_Plane"), [""])
sketch18.MapMode = "FlatFace"
sketch18.AttachmentOffset = App.Placement(V(0, 0, 321.23908), App.Rotation())
add_polygon(sketch18, [(-93, 57), (-93, 0), (-38, 0), (-38, 57)])  # lines 0-3
sketch18.addConstraint(Sketcher.Constraint("Vertical", 0))
sketch18.addConstraint(Sketcher.Constraint("Horizontal", 1))
sketch18.addConstraint(Sketcher.Constraint("Vertical", 2))
sketch18.addConstraint(Sketcher.Constraint("Horizontal", 3))
sketch18.addConstraint(Sketcher.Constraint("PointOnObject", 0, 2, -1))
sketch18.addConstraint(Sketcher.Constraint("DistanceX", 1, 1, 1, 2, Q("55 mm")))
sketch18.addConstraint(Sketcher.Constraint("DistanceY", 0, 2, 0, 1, Q("57 mm")))
sketch18.addConstraint(Sketcher.Constraint("DistanceX", 0, 2, -1, 1, Q("92.926892 mm")))
pad13 = body.newObject("PartDesign::Pad", "Pad012")
pad13.Profile = sketch18
pad13.Length = 5.5

# Sketch on XZ plane
sketch19 = body.newObject("Sketcher::SketchObject", "Sketch018")
sketch19.AttachmentSupport = (doc.getObject("XZ_Plane"), [""])
sketch19.MapMode = "FlatFace"
sketch19.AttachmentOffset = App.Placement(V(0, 0, -54.76092), App.Rotation())
add_polygon(sketch19, [(-66.4, 87), (-64.4, 87), (-64.4, 57), (-37.9, 57), (-37.9, 0), (-92.9, 0), (-92.9, 57), (-66.4, 57)])  # lines 0-7
add_polygon(sketch19, [(-64.4, 55.5), (-64.4, 14), (-40.4, 14), (-40.4, 55.5)])  # lines 8-11
add_polygon(sketch19, [(-90.4, 55.5), (-90.4, 14), (-66.4, 14), (-66.4, 55.5)])  # lines 12-15
sketch19.addConstraint(Sketcher.Constraint("Horizontal", 0))
sketch19.addConstraint(Sketcher.Constraint("Vertical", 1))
sketch19.addConstraint(Sketcher.Constraint("Horizontal", 2))
sketch19.addConstraint(Sketcher.Constraint("Vertical", 3))
sketch19.addConstraint(Sketcher.Constraint("Horizontal", 4))
sketch19.addConstraint(Sketcher.Constraint("Vertical", 5))
sketch19.addConstraint(Sketcher.Constraint("Horizontal", 6))
sketch19.addConstraint(Sketcher.Constraint("Vertical", 7))
sketch19.addConstraint(Sketcher.Constraint("Vertical", 8))
sketch19.addConstraint(Sketcher.Constraint("Horizontal", 9))
sketch19.addConstraint(Sketcher.Constraint("Vertical", 10))
sketch19.addConstraint(Sketcher.Constraint("Horizontal", 11))
sketch19.addConstraint(Sketcher.Constraint("Vertical", 12))
sketch19.addConstraint(Sketcher.Constraint("Horizontal", 13))
sketch19.addConstraint(Sketcher.Constraint("Vertical", 14))
sketch19.addConstraint(Sketcher.Constraint("Horizontal", 15))
sketch19.addConstraint(Sketcher.Constraint("PointOnObject", 3, 2, -1))
sketch19.addConstraint(Sketcher.Constraint("Horizontal", 2, 2, 5, 2))
sketch19.addConstraint(Sketcher.Constraint("Horizontal", 9, 2, 12, 2))
sketch19.addConstraint(Sketcher.Constraint("Horizontal", 11, 2, 14, 2))
sketch19.addConstraint(Sketcher.Constraint("Vertical", 1, 2, 8, 2))
sketch19.addConstraint(Sketcher.Constraint("Vertical", 7, 2, 13, 2))
sketch19.addConstraint(Sketcher.Constraint("Equal", 2, 6))
sketch19.addConstraint(Sketcher.Constraint("Equal", 11, 13))
sketch19.addConstraint(Sketcher.Constraint("DistanceX", 0, 1, 0, 2, Q("2 mm")))
sketch19.addConstraint(Sketcher.Constraint("DistanceX", 4, 2, 4, 1, Q("55 mm")))
sketch19.addConstraint(Sketcher.Constraint("DistanceX", 9, 1, 9, 2, Q("24 mm")))
sketch19.addConstraint(Sketcher.Constraint("DistanceY", 1, 2, 1, 1, Q("30 mm")))
sketch19.addConstraint(Sketcher.Constraint("DistanceY", 3, 2, 3, 1, Q("57 mm")))
sketch19.addConstraint(Sketcher.Constraint("DistanceY", 8, 2, 8, 1, Q("41.5 mm")))
sketch19.addConstraint(Sketcher.Constraint("DistanceY", -1, 1, 8, 2, Q("14 mm")))
sketch19.addConstraint(Sketcher.Constraint("DistanceX", 0, 2, -1, 1, Q("64.426892 mm")))
pad14 = body.newObject("PartDesign::Pad", "Pad013")
pad14.Profile = sketch19
pad14.Length = 5.5
pad14.Reversed = True

# Sketch on YZ plane
sketch20 = body.newObject("Sketcher::SketchObject", "Sketch019")
sketch20.AttachmentSupport = (doc.getObject("YZ_Plane"), [""])
sketch20.MapMode = "FlatFace"
sketch20.AttachmentOffset = App.Placement(V(0, 0, -37.926892), App.Rotation())
add_polygon(sketch20, [(60, 57), (-327, 57), (-327, 0), (60, 0)])  # lines 0-3
sketch20.addGeometry(Part.Circle(V(35, 34, 0), V(0, 0, 1), 12), False)  # 4
sketch20.addConstraint(Sketcher.Constraint("Horizontal", 0))
sketch20.addConstraint(Sketcher.Constraint("Vertical", 1))
sketch20.addConstraint(Sketcher.Constraint("Horizontal", 2))
sketch20.addConstraint(Sketcher.Constraint("Vertical", 3))
sketch20.addConstraint(Sketcher.Constraint("PointOnObject", 1, 2, -1))
sketch20.addConstraint(Sketcher.Constraint("Diameter", 4, Q("24 mm")))
sketch20.addConstraint(Sketcher.Constraint("DistanceX", 0, 2, 0, 1, Q("387 mm")))
sketch20.addConstraint(Sketcher.Constraint("DistanceY", 1, 2, 1, 1, Q("57 mm")))
sketch20.addConstraint(Sketcher.Constraint("DistanceY", -1, 1, 4, 3, Q("34 mm")))
sketch20.addConstraint(Sketcher.Constraint("DistanceX", 0, 2, 4, 3, Q("361.25 mm")))
sketch20.addConstraint(Sketcher.Constraint("DistanceX", -1, 1, 4, 3, Q("34.51092 mm")))
pad15 = body.newObject("PartDesign::Pad", "Pad014")
pad15.Profile = sketch20
pad15.Length = 1

# Sketch on YZ plane
sketch21 = body.newObject("Sketcher::SketchObject", "Sketch020")
sketch21.AttachmentSupport = (doc.getObject("YZ_Plane"), [""])
sketch21.MapMode = "FlatFace"
sketch21.AttachmentOffset = App.Placement(V(0, 0, -92.926892), App.Rotation())
add_polygon(sketch21, [(60, 0), (-327, 0), (-327, 57), (60, 57)])  # lines 0-3
sketch21.addGeometry(Part.Circle(V(35, 34, 0), V(0, 0, 1), 12), False)  # 4
sketch21.addConstraint(Sketcher.Constraint("Horizontal", 0))
sketch21.addConstraint(Sketcher.Constraint("Vertical", 1))
sketch21.addConstraint(Sketcher.Constraint("Horizontal", 2))
sketch21.addConstraint(Sketcher.Constraint("Vertical", 3))
sketch21.addConstraint(Sketcher.Constraint("PointOnObject", 0, 2, -1))
sketch21.addConstraint(Sketcher.Constraint("Diameter", 4, Q("24 mm")))
sketch21.addConstraint(Sketcher.Constraint("DistanceX", 0, 2, 0, 1, Q("387 mm")))
sketch21.addConstraint(Sketcher.Constraint("DistanceY", 1, 1, 1, 2, Q("57 mm")))
sketch21.addConstraint(Sketcher.Constraint("DistanceY", -1, 1, 4, 3, Q("34 mm")))
sketch21.addConstraint(Sketcher.Constraint("DistanceX", -1, 1, 4, 3, Q("34.510879 mm")))
sketch21.addConstraint(Sketcher.Constraint("DistanceX", 0, 2, -1, 1, Q("326.73908 mm")))
pad16 = body.newObject("PartDesign::Pad", "Pad015")
pad16.Profile = sketch21
pad16.Length = 1
pad16.Reversed = True
doc.recompute()

fillet = body.newObject("PartDesign::Fillet", "Fillet")
fillet.Base = (pad16, edges_at(pad16, [(-65.427, -24.739, 87)]))
fillet.Radius = 1
doc.recompute()

fillet2 = body.newObject("PartDesign::Fillet", "Fillet001")
fillet2.Base = (fillet, edges_at(fillet, [(-65.427, -24.739, 57)]))
fillet2.Radius = 1
doc.recompute()

fillet3 = body.newObject("PartDesign::Fillet", "Fillet002")
fillet3.Base = (fillet2, edges_at(fillet2, [(-65.427, 60.261, 87)]))
fillet3.Radius = 1

# Sketch on XY plane
sketch22 = body.newObject("Sketcher::SketchObject", "Sketch021")
sketch22.AttachmentSupport = (doc.getObject("XY_Plane"), [""])
sketch22.MapMode = "FlatFace"
sketch22.AttachmentOffset = App.Placement(V(0, 0, 57), App.Rotation())
add_polygon(sketch22, [(-64.4, 15.3), (-64.4, -25.7), (-66.4, -25.7), (-66.4, 15.3), (-93.9, 15.3), (-93.9, -326.7), (-36.9, -326.7), (-36.9, 15.3)])  # lines 0-7
sketch22.addConstraint(Sketcher.Constraint("Vertical", 0))
sketch22.addConstraint(Sketcher.Constraint("Horizontal", 1))
sketch22.addConstraint(Sketcher.Constraint("Vertical", 2))
sketch22.addConstraint(Sketcher.Constraint("Horizontal", 3))
sketch22.addConstraint(Sketcher.Constraint("Vertical", 4))
sketch22.addConstraint(Sketcher.Constraint("Horizontal", 5))
sketch22.addConstraint(Sketcher.Constraint("Vertical", 6))
sketch22.addConstraint(Sketcher.Constraint("Horizontal", 7))
sketch22.addConstraint(Sketcher.Constraint("Horizontal", 3, 2, 6, 2))
sketch22.addConstraint(Sketcher.Constraint("Equal", 3, 7))
sketch22.addConstraint(Sketcher.Constraint("DistanceX", 1, 2, 1, 1, Q("2 mm")))
sketch22.addConstraint(Sketcher.Constraint("DistanceX", 5, 1, 5, 2, Q("57 mm")))
sketch22.addConstraint(Sketcher.Constraint("DistanceY", 0, 2, 0, 1, Q("41 mm")))
sketch22.addConstraint(Sketcher.Constraint("DistanceY", 4, 2, 4, 1, Q("341.999918 mm")))
sketch22.addConstraint(Sketcher.Constraint("DistanceX", 0, 2, -1, 1, Q("64.426892 mm")))
sketch22.addConstraint(Sketcher.Constraint("DistanceY", 0, 2, -1, 1, Q("25.739162 mm")))
pocket6 = body.newObject("PartDesign::Pocket", "Pocket005")
pocket6.Profile = sketch22
pocket6.Length = 0.85

doc.recompute()
